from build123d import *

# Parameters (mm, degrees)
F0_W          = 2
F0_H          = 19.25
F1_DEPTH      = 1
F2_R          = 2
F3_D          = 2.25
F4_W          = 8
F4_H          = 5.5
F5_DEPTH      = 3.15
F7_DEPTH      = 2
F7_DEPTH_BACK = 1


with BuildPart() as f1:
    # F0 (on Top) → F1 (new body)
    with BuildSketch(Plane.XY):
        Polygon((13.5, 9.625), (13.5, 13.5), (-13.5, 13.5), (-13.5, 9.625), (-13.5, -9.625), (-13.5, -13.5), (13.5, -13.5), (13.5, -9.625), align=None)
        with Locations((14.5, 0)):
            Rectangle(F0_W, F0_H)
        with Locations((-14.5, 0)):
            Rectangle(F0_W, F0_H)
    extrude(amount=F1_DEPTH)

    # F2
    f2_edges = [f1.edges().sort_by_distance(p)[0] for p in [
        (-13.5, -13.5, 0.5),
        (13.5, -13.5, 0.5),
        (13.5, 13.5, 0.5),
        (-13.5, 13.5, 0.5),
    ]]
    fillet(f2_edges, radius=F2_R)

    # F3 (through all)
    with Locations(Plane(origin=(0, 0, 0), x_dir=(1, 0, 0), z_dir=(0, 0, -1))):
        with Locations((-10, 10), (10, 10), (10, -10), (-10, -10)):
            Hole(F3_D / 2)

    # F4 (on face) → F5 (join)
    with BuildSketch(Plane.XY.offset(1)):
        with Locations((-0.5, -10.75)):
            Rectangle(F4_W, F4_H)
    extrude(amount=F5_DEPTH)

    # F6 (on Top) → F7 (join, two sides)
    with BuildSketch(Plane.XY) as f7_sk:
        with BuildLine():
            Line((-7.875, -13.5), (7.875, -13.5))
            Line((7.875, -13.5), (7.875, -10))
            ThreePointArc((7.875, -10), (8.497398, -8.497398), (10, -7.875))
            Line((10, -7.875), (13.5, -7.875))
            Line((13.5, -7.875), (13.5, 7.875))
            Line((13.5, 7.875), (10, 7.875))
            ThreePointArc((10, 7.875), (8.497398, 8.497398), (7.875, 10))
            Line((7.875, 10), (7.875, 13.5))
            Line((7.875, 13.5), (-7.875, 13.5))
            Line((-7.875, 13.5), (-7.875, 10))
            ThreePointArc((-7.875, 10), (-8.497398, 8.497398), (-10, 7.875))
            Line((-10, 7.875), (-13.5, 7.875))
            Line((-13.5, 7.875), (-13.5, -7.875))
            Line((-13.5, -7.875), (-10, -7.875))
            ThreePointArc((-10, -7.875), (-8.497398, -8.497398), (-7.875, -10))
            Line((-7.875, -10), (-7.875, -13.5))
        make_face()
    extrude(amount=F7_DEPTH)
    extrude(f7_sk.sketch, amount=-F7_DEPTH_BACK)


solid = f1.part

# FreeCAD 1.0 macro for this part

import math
import FreeCAD as App
import Part
import Sketcher
Q = App.Units.Quantity


def edges_at(feature, points):
    """Names of the edges that pass closest to the given points."""
    edges = feature.Shape.Edges
    near = lambda p: min(range(len(edges)), key=lambda i: edges[i].distToShape(Part.Vertex(*p))[0])
    return sorted({f"Edge{near(p) + 1}" for p in points})

doc = App.newDocument("Part")
params = doc.addObject("Spreadsheet::Sheet", "Params")
for row, (alias, value) in enumerate([
    ("sketch1_width", "27 mm"),
    ("sketch1_width2", "2 mm"),
    ("sketch1_height", "19.25 mm"),
    ("pad1_length", "1 mm"),
    ("fillet_radius", "2 mm"),
    ("sketch2_diameter", "2.25 mm"),
    ("hole_diameter", "2.25 mm"),
    ("sketch3_width", "8 mm"),
    ("sketch3_height", "5.5 mm"),
    ("pad2_length", "3.15 mm"),
    ("sketch4_width", "3.5 mm"),
    ("pad3_length", "2 mm"),
    ("pad3_length2", "1 mm"),
], start=1):
    params.set(f"A{row}", alias)
    params.set(f"B{row}", "=" + value)
    params.setAlias(f"B{row}", alias)

body = doc.addObject("PartDesign::Body", "Body")

sketch1 = doc.addObject("Sketcher::SketchObject", "Sketch")
body.addObject(sketch1)
sketch1.AttachmentSupport = (doc.XY_Plane, [""])
sketch1.MapMode = "FlatFace"
sketch1.addGeometry(Part.LineSegment(App.Vector(13.5, 13.5, 0), App.Vector(-13.5, 13.5, 0)), False)
sketch1.addGeometry(Part.LineSegment(App.Vector(-13.5, 13.5, 0), App.Vector(-13.5, 9.6, 0)), False)
sketch1.addGeometry(Part.LineSegment(App.Vector(-13.5, 9.6, 0), App.Vector(-15.5, 9.6, 0)), False)
sketch1.addGeometry(Part.LineSegment(App.Vector(-15.5, 9.6, 0), App.Vector(-15.5, -9.6, 0)), False)
sketch1.addGeometry(Part.LineSegment(App.Vector(-15.5, -9.6, 0), App.Vector(-13.5, -9.6, 0)), False)
sketch1.addGeometry(Part.LineSegment(App.Vector(-13.5, -9.6, 0), App.Vector(-13.5, -13.5, 0)), False)
sketch1.addGeometry(Part.LineSegment(App.Vector(-13.5, -13.5, 0), App.Vector(13.5, -13.5, 0)), False)
sketch1.addGeometry(Part.LineSegment(App.Vector(13.5, -13.5, 0), App.Vector(13.5, -9.6, 0)), False)
sketch1.addGeometry(Part.LineSegment(App.Vector(13.5, -9.6, 0), App.Vector(15.5, -9.6, 0)), False)
sketch1.addGeometry(Part.LineSegment(App.Vector(15.5, -9.6, 0), App.Vector(15.5, 9.6, 0)), False)
sketch1.addGeometry(Part.LineSegment(App.Vector(15.5, 9.6, 0), App.Vector(13.5, 9.6, 0)), False)
sketch1.addGeometry(Part.LineSegment(App.Vector(13.5, 9.6, 0), App.Vector(13.5, 13.5, 0)), False)
sketch1.addConstraint(Sketcher.Constraint("Coincident", 0, 2, 1, 1))
sketch1.addConstraint(Sketcher.Constraint("Coincident", 1, 2, 2, 1))
sketch1.addConstraint(Sketcher.Constraint("Coincident", 2, 2, 3, 1))
sketch1.addConstraint(Sketcher.Constraint("Coincident", 3, 2, 4, 1))
sketch1.addConstraint(Sketcher.Constraint("Coincident", 4, 2, 5, 1))
sketch1.addConstraint(Sketcher.Constraint("Coincident", 5, 2, 6, 1))
sketch1.addConstraint(Sketcher.Constraint("Coincident", 6, 2, 7, 1))
sketch1.addConstraint(Sketcher.Constraint("Coincident", 7, 2, 8, 1))
sketch1.addConstraint(Sketcher.Constraint("Coincident", 8, 2, 9, 1))
sketch1.addConstraint(Sketcher.Constraint("Coincident", 9, 2, 10, 1))
sketch1.addConstraint(Sketcher.Constraint("Coincident", 10, 2, 11, 1))
sketch1.addConstraint(Sketcher.Constraint("Coincident", 11, 2, 0, 1))
sketch1.addConstraint(Sketcher.Constraint("Horizontal", 0))
sketch1.addConstraint(Sketcher.Constraint("Vertical", 1))
sketch1.addConstraint(Sketcher.Constraint("Horizontal", 2))
sketch1.addConstraint(Sketcher.Constraint("Vertical", 3))
sketch1.addConstraint(Sketcher.Constraint("Horizontal", 4))
sketch1.addConstraint(Sketcher.Constraint("Vertical", 5))
sketch1.addConstraint(Sketcher.Constraint("Horizontal", 6))
sketch1.addConstraint(Sketcher.Constraint("Vertical", 7))
sketch1.addConstraint(Sketcher.Constraint("Horizontal", 8))
sketch1.addConstraint(Sketcher.Constraint("Vertical", 9))
sketch1.addConstraint(Sketcher.Constraint("Horizontal", 10))
sketch1.addConstraint(Sketcher.Constraint("Vertical", 11))
sketch1.addConstraint(Sketcher.Constraint("Symmetric", 0, 2, 6, 2, -1, 1))
sketch1.addConstraint(Sketcher.Constraint("Symmetric", 2, 2, 8, 2, -1, 1))
sketch1.addConstraint(Sketcher.Constraint("Symmetric", 4, 2, 10, 2, -1, 1))
sketch1.addConstraint(Sketcher.Constraint("Symmetric", 4, 2, 7, 2, -2))
sketch1.addConstraint(Sketcher.Constraint("DistanceX", 0, 2, 0, 1, Q("27 mm")))
sketch1.addConstraint(Sketcher.Constraint("DistanceX", 2, 2, 2, 1, Q("2 mm")))
sketch1.addConstraint(Sketcher.Constraint("DistanceY", 5, 2, 0, 2, Q("27 mm")))
sketch1.addConstraint(Sketcher.Constraint("DistanceY", 3, 2, 3, 1, Q("19.25 mm")))
sketch1.setExpression("Constraints[28]", "Params.sketch1_width")
sketch1.setExpression("Constraints[29]", "Params.sketch1_width2")
sketch1.setExpression("Constraints[31]", "Params.sketch1_height")
pad1 = doc.addObject("PartDesign::Pad", "Pad")
body.addObject(pad1)
pad1.Profile = sketch1
pad1.setExpression("Length", "Params.pad1_length")
doc.recompute()

fillet = doc.addObject("PartDesign::Fillet", "Fillet")
body.addObject(fillet)
fillet.Base = (pad1, edges_at(pad1, [
    (-13.5, -13.5, 0.5),
    (13.5, -13.5, 0.5),
    (13.5, 13.5, 0.5),
    (-13.5, 13.5, 0.5),
]))
fillet.setExpression("Radius", "Params.fillet_radius")

sketch2 = doc.addObject("Sketcher::SketchObject", "Sketch001")
body.addObject(sketch2)
sketch2.AttachmentSupport = (doc.XY_Plane, [""])
sketch2.MapMode = "FlatFace"
sketch2.addGeometry(Part.Circle(App.Vector(-10, -10, 0), App.Vector(0, 0, 1), 1.1), False)
sketch2.addGeometry(Part.Circle(App.Vector(10, -10, 0), App.Vector(0, 0, 1), 1.1), False)
sketch2.addGeometry(Part.Circle(App.Vector(10, 10, 0), App.Vector(0, 0, 1), 1.1), False)
sketch2.addGeometry(Part.Circle(App.Vector(-10, 10, 0), App.Vector(0, 0, 1), 1.1), False)
sketch2.addConstraint(Sketcher.Constraint("Equal", 0, 1))
sketch2.addConstraint(Sketcher.Constraint("Equal", 1, 2))
sketch2.addConstraint(Sketcher.Constraint("Equal", 2, 3))
sketch2.addConstraint(Sketcher.Constraint("Symmetric", 0, 3, 2, 3, -1, 1))
sketch2.addConstraint(Sketcher.Constraint("Symmetric", 1, 3, 3, 3, -1, 1))
sketch2.addConstraint(Sketcher.Constraint("Symmetric", 0, 3, 1, 3, -2))
sketch2.addConstraint(Sketcher.Constraint("Diameter", 0, Q("2.25 mm")))
sketch2.addConstraint(Sketcher.Constraint("DistanceX", 0, 3, -1, 1, Q("10 mm")))
sketch2.addConstraint(Sketcher.Constraint("DistanceY", 0, 3, -1, 1, Q("10 mm")))
sketch2.setExpression("Constraints[6]", "Params.sketch2_diameter")
doc.recompute()
hole = doc.addObject("PartDesign::Hole", "Hole")
body.addObject(hole)
hole.Profile = sketch2
hole.ThreadType = "None"
hole.setExpression("Diameter", "Params.hole_diameter")
hole.DepthType = "ThroughAll"
hole.Reversed = True

sketch3 = doc.addObject("Sketcher::SketchObject", "Sketch002")
body.addObject(sketch3)
sketch3.AttachmentSupport = (doc.XY_Plane, [""])
sketch3.MapMode = "FlatFace"
sketch3.AttachmentOffset = App.Placement(App.Vector(0, 0, 1), App.Rotation())
sketch3.addGeometry(Part.LineSegment(App.Vector(-4, -8, 0), App.Vector(-4, -14, 0)), False)
sketch3.addGeometry(Part.LineSegment(App.Vector(-4, -14, 0), App.Vector(4, -14, 0)), False)
sketch3.addGeometry(Part.LineSegment(App.Vector(4, -14, 0), App.Vector(4, -8, 0)), False)
sketch3.addGeometry(Part.LineSegment(App.Vector(4, -8, 0), App.Vector(-4, -8, 0)), False)
sketch3.addConstraint(Sketcher.Constraint("Coincident", 0, 2, 1, 1))
sketch3.addConstraint(Sketcher.Constraint("Coincident", 1, 2, 2, 1))
sketch3.addConstraint(Sketcher.Constraint("Coincident", 2, 2, 3, 1))
sketch3.addConstraint(Sketcher.Constraint("Coincident", 3, 2, 0, 1))
sketch3.addConstraint(Sketcher.Constraint("Vertical", 0))
sketch3.addConstraint(Sketcher.Constraint("Horizontal", 1))
sketch3.addConstraint(Sketcher.Constraint("Vertical", 2))
sketch3.addConstraint(Sketcher.Constraint("Horizontal", 3))
sketch3.addConstraint(Sketcher.Constraint("DistanceX", 1, 1, 1, 2, Q("8 mm")))
sketch3.addConstraint(Sketcher.Constraint("DistanceY", 0, 2, 0, 1, Q("5.5 mm")))
sketch3.addConstraint(Sketcher.Constraint("DistanceY", 2, 2, -1, 1, Q("8 mm")))
sketch3.addConstraint(Sketcher.Constraint("DistanceX", 0, 2, -1, 1, Q("4.5 mm")))
sketch3.setExpression("Constraints[8]", "Params.sketch3_width")
sketch3.setExpression("Constraints[9]", "Params.sketch3_height")
pad2 = doc.addObject("PartDesign::Pad", "Pad001")
body.addObject(pad2)
pad2.Profile = sketch3
pad2.setExpression("Length", "Params.pad2_length")

sketch4 = doc.addObject("Sketcher::SketchObject", "Sketch003")
body.addObject(sketch4)
sketch4.AttachmentSupport = (doc.XY_Plane, [""])
sketch4.MapMode = "FlatFace"
sketch4.addGeometry(Part.LineSegment(App.Vector(-7.9, -13.5, 0), App.Vector(7.9, -13.5, 0)), False)
sketch4.addGeometry(Part.LineSegment(App.Vector(7.9, -13.5, 0), App.Vector(7.9, -10, 0)), False)
sketch4.addGeometry(Part.ArcOfCircle(Part.Circle(App.Vector(10, -10, 0), App.Vector(0, 0, 1), 2.1), math.radians(90), math.radians(180)), False)
sketch4.addGeometry(Part.LineSegment(App.Vector(10, -7.9, 0), App.Vector(13.5, -7.9, 0)), False)
sketch4.addGeometry(Part.LineSegment(App.Vector(13.5, -7.9, 0), App.Vector(13.5, 7.9, 0)), False)
sketch4.addGeometry(Part.LineSegment(App.Vector(13.5, 7.9, 0), App.Vector(10, 7.9, 0)), False)
sketch4.addGeometry(Part.ArcOfCircle(Part.Circle(App.Vector(10, 10, 0), App.Vector(0, 0, 1), 2.1), math.radians(180), math.radians(270)), False)
sketch4.addGeometry(Part.LineSegment(App.Vector(7.9, 10, 0), App.Vector(7.9, 13.5, 0)), False)
sketch4.addGeometry(Part.LineSegment(App.Vector(7.9, 13.5, 0), App.Vector(-7.9, 13.5, 0)), False)
sketch4.addGeometry(Part.LineSegment(App.Vector(-7.9, 13.5, 0), App.Vector(-7.9, 10, 0)), False)
sketch4.addGeometry(Part.ArcOfCircle(Part.Circle(App.Vector(-10, 10, 0), App.Vector(0, 0, 1), 2.1), math.radians(-90), math.radians(0)), False)
sketch4.addGeometry(Part.LineSegment(App.Vector(-10, 7.9, 0), App.Vector(-13.5, 7.9, 0)), False)
sketch4.addGeometry(Part.LineSegment(App.Vector(-13.5, 7.9, 0), App.Vector(-13.5, -7.9, 0)), False)
sketch4.addGeometry(Part.LineSegment(App.Vector(-13.5, -7.9, 0), App.Vector(-10, -7.9, 0)), False)
sketch4.addGeometry(Part.ArcOfCircle(Part.Circle(App.Vector(-10, -10, 0), App.Vector(0, 0, 1), 2.1), math.radians(0), math.radians(90)), False)
sketch4.addGeometry(Part.LineSegment(App.Vector(-7.9, -10, 0), App.Vector(-7.9, -13.5, 0)), False)
sketch4.addConstraint(Sketcher.Constraint("Coincident", 0, 2, 1, 1))
sketch4.addConstraint(Sketcher.Constraint("Tangent", 1, 2, 2, 2))
sketch4.addConstraint(Sketcher.Constraint("Tangent", 2, 1, 3, 1))
sketch4.addConstraint(Sketcher.Constraint("Coincident", 3, 2, 4, 1))
sketch4.addConstraint(Sketcher.Constraint("Coincident", 4, 2, 5, 1))
sketch4.addConstraint(Sketcher.Constraint("Tangent", 5, 2, 6, 2))
sketch4.addConstraint(Sketcher.Constraint("Tangent", 6, 1, 7, 1))
sketch4.addConstraint(Sketcher.Constraint("Coincident", 7, 2, 8, 1))
sketch4.addConstraint(Sketcher.Constraint("Coincident", 8, 2, 9, 1))
sketch4.addConstraint(Sketcher.Constraint("Tangent", 9, 2, 10, 2))
sketch4.addConstraint(Sketcher.Constraint("Tangent", 10, 1, 11, 1))
sketch4.addConstraint(Sketcher.Constraint("Coincident", 11, 2, 12, 1))
sketch4.addConstraint(Sketcher.Constraint("Coincident", 12, 2, 13, 1))
sketch4.addConstraint(Sketcher.Constraint("Tangent", 13, 2, 14, 2))
sketch4.addConstraint(Sketcher.Constraint("Tangent", 14, 1, 15, 1))
sketch4.addConstraint(Sketcher.Constraint("Coincident", 15, 2, 0, 1))
sketch4.addConstraint(Sketcher.Constraint("Horizontal", 0))
sketch4.addConstraint(Sketcher.Constraint("Vertical", 1))
sketch4.addConstraint(Sketcher.Constraint("Horizontal", 3))
sketch4.addConstraint(Sketcher.Constraint("Vertical", 4))
sketch4.addConstraint(Sketcher.Constraint("Horizontal", 5))
sketch4.addConstraint(Sketcher.Constraint("Vertical", 7))
sketch4.addConstraint(Sketcher.Constraint("Horizontal", 8))
sketch4.addConstraint(Sketcher.Constraint("Vertical", 9))
sketch4.addConstraint(Sketcher.Constraint("Horizontal", 11))
sketch4.addConstraint(Sketcher.Constraint("Vertical", 12))
sketch4.addConstraint(Sketcher.Constraint("Horizontal", 13))
sketch4.addConstraint(Sketcher.Constraint("Vertical", 15))
sketch4.addConstraint(Sketcher.Constraint("Equal", 2, 6))
sketch4.addConstraint(Sketcher.Constraint("Equal", 6, 10))
sketch4.addConstraint(Sketcher.Constraint("Equal", 10, 14))
sketch4.addConstraint(Sketcher.Constraint("Symmetric", 2, 3, 10, 3, -1, 1))
sketch4.addConstraint(Sketcher.Constraint("Symmetric", 6, 3, 14, 3, -1, 1))
sketch4.addConstraint(Sketcher.Constraint("Symmetric", 6, 3, 10, 3, -2))
sketch4.addConstraint(Sketcher.Constraint("Equal", 5, 11))
sketch4.addConstraint(Sketcher.Constraint("Equal", 13, 1))
sketch4.addConstraint(Sketcher.Constraint("Equal", 8, 4))
sketch4.addConstraint(Sketcher.Constraint("Equal", 1, 7))
sketch4.addConstraint(Sketcher.Constraint("DistanceX", 3, 1, 3, 2, Q("3.5 mm")))
sketch4.addConstraint(Sketcher.Constraint("DistanceX", -1, 1, 2, 3, Q("10 mm")))
sketch4.addConstraint(Sketcher.Constraint("Radius", 2, Q("2.125 mm")))
sketch4.setExpression("Constraints[38]", "Params.sketch4_width")
pad3 = doc.addObject("PartDesign::Pad", "Pad002")
body.addObject(pad3)
pad3.Profile = sketch4
pad3.Type = "TwoLengths"
pad3.setExpression("Length", "Params.pad3_length")
pad3.setExpression("Length2", "Params.pad3_length2")

doc.recompute()
